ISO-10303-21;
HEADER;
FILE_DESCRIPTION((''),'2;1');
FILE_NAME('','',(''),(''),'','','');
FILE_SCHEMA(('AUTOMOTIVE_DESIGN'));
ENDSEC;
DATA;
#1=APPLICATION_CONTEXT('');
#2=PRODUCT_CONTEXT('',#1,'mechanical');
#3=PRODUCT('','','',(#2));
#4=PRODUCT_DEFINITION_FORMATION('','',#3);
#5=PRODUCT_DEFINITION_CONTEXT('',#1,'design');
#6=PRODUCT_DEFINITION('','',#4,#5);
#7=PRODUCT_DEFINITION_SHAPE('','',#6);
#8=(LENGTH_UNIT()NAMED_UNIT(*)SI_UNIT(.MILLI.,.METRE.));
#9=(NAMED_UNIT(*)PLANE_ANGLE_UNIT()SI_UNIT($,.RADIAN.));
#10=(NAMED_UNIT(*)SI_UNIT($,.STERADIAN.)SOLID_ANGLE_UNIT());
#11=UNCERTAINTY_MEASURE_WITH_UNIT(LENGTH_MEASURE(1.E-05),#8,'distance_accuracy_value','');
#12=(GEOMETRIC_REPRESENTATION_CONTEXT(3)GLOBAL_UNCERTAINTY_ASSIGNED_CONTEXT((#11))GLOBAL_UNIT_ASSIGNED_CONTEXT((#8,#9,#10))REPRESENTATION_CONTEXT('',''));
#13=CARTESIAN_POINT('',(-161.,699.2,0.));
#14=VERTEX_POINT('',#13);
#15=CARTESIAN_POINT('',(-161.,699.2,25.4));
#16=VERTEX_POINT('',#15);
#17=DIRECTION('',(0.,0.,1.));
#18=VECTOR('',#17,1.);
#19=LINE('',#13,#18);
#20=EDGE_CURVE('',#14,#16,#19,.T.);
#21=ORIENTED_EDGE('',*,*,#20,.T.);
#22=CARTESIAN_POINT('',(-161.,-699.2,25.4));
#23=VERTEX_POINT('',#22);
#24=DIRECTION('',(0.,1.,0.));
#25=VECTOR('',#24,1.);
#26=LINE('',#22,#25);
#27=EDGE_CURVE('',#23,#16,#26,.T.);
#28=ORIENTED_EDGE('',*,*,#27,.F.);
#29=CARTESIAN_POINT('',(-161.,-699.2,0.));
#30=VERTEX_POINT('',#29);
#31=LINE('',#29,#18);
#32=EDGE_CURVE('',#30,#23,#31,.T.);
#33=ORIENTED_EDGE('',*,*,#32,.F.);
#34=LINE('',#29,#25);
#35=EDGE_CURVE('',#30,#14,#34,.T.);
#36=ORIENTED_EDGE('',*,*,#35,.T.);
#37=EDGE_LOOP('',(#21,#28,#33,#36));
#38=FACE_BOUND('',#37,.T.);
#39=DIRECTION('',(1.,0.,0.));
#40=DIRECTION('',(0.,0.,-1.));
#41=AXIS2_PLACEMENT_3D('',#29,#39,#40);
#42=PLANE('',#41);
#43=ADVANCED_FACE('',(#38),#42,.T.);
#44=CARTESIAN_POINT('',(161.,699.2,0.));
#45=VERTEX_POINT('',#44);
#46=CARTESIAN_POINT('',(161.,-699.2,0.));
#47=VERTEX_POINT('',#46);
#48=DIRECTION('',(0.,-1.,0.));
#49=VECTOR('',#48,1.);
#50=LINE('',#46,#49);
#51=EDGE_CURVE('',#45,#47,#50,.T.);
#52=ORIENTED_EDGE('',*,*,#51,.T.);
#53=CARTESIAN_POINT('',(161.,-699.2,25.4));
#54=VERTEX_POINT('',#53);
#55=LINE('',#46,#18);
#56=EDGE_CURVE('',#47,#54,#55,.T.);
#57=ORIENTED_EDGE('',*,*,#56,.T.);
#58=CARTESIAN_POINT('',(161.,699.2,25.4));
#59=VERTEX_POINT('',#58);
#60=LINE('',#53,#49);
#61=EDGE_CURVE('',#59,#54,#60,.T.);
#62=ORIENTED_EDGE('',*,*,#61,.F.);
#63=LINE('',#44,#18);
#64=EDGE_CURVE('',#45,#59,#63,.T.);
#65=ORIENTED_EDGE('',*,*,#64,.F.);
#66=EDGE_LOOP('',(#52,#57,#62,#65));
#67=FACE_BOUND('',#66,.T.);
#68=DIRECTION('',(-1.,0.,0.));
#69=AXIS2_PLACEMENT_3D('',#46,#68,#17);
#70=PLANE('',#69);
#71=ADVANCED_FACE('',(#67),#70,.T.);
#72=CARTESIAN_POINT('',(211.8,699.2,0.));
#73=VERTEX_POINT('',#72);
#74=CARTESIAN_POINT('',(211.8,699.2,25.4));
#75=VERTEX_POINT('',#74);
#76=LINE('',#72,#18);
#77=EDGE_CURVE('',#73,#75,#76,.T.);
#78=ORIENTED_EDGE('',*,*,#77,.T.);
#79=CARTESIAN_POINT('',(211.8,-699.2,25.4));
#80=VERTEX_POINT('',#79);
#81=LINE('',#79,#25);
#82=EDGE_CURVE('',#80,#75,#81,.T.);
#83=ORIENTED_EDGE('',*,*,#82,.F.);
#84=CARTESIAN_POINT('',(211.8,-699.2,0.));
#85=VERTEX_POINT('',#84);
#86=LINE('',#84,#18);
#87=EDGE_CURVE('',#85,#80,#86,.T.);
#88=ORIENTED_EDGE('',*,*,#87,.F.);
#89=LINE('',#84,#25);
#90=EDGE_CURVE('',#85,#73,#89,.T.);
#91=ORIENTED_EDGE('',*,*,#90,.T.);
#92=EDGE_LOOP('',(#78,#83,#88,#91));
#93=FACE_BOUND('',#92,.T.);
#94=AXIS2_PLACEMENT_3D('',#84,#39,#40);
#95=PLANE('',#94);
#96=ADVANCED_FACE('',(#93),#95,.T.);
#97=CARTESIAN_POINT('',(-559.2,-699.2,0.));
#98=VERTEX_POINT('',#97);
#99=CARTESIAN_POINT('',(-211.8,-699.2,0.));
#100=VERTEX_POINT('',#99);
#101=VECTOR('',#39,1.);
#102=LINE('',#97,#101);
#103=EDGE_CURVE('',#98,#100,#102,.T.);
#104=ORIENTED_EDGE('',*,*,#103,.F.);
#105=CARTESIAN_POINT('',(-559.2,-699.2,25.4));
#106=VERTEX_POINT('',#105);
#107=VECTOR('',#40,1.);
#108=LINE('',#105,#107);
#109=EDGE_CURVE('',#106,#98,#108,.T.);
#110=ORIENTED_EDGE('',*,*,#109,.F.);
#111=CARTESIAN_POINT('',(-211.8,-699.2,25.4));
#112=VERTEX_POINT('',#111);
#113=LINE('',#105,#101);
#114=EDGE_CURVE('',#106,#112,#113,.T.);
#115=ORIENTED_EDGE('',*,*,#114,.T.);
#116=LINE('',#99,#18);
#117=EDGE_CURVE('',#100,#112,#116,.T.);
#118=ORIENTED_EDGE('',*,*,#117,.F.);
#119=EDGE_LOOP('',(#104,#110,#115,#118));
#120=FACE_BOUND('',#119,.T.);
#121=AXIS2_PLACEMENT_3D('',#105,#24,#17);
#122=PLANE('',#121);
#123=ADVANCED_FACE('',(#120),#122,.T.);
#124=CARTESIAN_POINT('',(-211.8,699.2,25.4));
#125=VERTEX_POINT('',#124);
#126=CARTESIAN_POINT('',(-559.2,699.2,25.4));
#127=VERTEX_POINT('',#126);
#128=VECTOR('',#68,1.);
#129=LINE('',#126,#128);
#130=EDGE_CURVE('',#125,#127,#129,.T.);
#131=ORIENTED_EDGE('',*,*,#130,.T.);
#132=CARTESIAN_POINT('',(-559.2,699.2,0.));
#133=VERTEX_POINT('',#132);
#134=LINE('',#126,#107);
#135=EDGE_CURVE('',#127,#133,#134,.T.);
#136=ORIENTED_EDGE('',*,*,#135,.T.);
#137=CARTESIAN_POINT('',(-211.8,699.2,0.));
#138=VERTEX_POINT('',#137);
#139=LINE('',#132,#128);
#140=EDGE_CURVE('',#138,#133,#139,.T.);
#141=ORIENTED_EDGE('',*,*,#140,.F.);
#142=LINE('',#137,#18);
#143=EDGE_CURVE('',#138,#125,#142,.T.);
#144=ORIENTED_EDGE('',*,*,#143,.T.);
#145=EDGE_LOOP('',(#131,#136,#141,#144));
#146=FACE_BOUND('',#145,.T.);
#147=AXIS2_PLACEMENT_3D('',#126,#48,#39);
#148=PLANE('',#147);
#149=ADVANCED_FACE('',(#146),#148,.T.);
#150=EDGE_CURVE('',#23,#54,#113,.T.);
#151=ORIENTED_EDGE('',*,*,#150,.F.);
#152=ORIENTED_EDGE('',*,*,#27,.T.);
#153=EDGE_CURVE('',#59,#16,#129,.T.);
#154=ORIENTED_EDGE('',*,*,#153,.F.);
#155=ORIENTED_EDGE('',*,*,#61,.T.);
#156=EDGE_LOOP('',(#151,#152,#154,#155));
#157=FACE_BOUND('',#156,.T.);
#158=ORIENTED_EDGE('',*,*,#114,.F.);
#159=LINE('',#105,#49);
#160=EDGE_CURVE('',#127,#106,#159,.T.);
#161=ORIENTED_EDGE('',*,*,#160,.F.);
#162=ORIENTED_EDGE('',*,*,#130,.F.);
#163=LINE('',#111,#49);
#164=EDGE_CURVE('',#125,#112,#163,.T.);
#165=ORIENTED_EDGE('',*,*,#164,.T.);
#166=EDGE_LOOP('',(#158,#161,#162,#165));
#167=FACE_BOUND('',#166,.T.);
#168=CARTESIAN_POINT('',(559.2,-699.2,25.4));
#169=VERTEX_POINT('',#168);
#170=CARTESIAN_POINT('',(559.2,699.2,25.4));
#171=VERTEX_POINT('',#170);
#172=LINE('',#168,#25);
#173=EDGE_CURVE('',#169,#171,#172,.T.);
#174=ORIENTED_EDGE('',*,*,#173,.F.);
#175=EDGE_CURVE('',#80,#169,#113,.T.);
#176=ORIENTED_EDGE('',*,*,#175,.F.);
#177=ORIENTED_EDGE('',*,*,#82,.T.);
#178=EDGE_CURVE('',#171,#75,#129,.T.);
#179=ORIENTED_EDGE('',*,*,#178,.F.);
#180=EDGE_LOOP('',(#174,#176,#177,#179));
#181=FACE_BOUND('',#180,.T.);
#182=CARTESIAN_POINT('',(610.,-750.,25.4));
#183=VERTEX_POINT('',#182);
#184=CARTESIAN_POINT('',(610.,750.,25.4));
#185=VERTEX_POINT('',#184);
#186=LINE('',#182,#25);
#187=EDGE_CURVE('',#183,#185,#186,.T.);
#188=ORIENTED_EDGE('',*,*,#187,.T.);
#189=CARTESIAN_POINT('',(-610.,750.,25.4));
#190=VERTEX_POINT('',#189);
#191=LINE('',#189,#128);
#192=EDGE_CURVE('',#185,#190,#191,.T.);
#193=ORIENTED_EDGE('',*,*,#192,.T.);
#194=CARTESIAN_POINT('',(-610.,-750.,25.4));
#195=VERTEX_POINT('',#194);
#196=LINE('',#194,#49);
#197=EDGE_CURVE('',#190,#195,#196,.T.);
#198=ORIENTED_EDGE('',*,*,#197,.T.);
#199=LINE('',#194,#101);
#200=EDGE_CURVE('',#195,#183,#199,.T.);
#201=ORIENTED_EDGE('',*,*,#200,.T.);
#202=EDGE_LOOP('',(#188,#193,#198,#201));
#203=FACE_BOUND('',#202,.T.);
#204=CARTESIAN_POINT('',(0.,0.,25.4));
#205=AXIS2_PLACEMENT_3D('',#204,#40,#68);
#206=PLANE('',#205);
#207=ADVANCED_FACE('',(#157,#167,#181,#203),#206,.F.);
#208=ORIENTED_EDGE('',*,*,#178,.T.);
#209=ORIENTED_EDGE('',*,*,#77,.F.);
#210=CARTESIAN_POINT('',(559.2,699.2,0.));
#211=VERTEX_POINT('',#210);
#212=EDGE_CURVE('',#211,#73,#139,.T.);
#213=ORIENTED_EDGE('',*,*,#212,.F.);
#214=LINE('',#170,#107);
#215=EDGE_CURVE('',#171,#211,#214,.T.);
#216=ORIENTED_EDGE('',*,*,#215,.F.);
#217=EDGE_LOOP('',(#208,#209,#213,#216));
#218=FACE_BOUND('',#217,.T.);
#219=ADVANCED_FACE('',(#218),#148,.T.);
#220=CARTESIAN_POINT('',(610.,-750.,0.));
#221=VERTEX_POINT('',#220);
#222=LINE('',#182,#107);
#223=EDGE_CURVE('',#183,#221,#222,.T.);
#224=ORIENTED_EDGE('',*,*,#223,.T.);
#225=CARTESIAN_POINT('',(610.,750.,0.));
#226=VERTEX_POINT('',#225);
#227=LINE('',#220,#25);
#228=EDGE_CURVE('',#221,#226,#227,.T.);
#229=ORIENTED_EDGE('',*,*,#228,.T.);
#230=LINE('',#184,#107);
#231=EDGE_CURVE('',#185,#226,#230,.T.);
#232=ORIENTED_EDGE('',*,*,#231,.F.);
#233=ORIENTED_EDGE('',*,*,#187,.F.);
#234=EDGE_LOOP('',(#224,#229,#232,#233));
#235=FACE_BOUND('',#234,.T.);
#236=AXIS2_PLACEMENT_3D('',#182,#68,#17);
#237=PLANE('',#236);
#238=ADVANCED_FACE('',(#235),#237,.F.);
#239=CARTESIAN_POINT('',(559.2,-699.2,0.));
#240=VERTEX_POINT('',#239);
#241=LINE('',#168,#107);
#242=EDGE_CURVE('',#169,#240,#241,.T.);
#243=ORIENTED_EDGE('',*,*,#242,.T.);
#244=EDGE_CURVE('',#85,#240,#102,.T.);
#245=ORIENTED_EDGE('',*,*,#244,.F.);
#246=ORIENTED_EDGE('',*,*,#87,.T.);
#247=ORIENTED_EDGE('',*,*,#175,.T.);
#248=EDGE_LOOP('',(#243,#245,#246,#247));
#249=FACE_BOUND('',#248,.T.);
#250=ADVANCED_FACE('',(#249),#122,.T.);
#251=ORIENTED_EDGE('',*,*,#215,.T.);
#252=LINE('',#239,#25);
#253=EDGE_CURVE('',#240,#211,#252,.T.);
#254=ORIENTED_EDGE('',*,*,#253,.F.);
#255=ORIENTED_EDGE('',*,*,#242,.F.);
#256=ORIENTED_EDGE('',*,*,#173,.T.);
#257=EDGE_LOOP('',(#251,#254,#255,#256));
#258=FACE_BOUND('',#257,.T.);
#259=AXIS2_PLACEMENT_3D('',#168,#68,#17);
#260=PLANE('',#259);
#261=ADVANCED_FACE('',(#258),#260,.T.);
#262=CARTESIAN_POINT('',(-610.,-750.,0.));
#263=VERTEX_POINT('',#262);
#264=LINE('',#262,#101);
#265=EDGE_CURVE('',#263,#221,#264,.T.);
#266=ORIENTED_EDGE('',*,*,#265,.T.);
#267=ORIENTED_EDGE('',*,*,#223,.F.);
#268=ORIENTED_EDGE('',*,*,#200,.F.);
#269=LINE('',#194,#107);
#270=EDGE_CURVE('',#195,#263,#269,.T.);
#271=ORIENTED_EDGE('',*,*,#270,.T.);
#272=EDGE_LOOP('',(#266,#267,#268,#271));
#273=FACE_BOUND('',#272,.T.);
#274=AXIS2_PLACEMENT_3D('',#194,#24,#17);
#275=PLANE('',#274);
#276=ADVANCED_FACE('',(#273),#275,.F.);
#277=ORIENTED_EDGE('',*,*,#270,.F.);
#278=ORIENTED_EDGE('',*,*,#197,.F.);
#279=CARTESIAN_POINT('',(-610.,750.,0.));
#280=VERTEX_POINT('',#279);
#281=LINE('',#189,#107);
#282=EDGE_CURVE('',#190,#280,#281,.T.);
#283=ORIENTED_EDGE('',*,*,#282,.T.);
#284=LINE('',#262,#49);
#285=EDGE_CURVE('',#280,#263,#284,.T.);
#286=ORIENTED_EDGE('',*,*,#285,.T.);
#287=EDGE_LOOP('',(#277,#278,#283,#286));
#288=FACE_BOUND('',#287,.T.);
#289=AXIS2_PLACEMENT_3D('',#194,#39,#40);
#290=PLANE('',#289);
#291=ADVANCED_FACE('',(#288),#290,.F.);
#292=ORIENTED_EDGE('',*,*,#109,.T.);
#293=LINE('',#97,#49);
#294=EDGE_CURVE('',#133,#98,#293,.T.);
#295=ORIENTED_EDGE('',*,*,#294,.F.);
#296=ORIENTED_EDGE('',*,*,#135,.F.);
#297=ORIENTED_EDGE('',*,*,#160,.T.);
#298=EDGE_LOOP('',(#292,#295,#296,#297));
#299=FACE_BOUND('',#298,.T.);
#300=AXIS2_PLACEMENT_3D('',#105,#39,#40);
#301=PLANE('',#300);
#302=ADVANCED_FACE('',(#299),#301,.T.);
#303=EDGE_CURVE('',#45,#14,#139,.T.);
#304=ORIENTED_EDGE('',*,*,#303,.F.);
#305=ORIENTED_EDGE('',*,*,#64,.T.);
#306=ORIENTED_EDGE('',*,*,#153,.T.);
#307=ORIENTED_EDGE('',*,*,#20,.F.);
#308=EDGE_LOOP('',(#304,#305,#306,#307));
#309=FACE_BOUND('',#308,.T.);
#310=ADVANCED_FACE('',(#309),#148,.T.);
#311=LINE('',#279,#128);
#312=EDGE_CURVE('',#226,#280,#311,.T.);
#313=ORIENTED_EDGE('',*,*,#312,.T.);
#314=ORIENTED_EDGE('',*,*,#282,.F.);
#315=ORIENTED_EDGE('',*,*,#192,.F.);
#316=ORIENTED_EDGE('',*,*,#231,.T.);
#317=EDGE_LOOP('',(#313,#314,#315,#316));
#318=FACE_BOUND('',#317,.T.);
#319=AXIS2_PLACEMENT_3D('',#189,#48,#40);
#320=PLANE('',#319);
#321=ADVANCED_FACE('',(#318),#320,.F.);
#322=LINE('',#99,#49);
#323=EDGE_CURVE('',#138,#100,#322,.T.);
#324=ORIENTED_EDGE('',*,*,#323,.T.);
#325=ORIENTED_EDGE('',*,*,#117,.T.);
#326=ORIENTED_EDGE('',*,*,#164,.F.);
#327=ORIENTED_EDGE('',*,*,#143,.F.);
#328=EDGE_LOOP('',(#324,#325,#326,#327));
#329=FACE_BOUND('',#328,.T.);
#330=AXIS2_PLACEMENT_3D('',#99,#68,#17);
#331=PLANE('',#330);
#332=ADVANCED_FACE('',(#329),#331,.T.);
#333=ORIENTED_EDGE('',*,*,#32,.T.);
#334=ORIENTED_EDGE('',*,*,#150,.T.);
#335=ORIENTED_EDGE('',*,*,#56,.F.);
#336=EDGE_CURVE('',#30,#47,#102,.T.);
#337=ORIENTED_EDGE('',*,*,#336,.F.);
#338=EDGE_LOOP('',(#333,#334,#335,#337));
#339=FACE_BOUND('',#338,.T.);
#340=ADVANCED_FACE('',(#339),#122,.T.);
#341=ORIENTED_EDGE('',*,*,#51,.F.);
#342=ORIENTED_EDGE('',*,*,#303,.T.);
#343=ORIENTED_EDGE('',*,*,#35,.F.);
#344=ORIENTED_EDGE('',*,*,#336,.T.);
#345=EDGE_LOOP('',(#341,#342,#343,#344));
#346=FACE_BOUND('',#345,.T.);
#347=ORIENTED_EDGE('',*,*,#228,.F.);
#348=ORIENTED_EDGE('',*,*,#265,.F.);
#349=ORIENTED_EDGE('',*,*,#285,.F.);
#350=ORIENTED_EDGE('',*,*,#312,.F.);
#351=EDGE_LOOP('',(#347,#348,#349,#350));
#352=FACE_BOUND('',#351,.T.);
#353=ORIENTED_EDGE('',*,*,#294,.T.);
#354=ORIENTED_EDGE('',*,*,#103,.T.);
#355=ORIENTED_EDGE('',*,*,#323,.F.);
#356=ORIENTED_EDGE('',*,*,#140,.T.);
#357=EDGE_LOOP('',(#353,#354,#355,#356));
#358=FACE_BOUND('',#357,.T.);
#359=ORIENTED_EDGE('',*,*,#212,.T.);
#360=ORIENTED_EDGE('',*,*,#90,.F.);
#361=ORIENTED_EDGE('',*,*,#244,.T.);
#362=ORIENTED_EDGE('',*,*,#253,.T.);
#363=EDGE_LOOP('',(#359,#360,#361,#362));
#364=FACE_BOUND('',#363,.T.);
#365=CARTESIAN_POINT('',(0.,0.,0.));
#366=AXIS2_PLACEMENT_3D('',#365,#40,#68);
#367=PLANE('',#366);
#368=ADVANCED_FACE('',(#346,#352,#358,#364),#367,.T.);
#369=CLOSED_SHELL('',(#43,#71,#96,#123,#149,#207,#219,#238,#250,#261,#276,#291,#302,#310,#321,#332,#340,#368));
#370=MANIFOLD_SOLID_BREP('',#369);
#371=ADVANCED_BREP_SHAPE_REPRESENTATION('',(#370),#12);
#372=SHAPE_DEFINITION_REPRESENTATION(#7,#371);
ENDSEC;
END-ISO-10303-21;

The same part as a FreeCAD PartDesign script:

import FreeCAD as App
import Part
import Sketcher

V = App.Vector

doc = App.newDocument("Part")
body = doc.addObject("PartDesign::Body", "Body")

# Sketch on XY plane
sketch1 = doc.addObject("Sketcher::SketchObject", "Sketch")
body.addObject(sketch1)
sketch1.AttachmentSupport = (doc.XY_Plane, [""])
sketch1.MapMode = "FlatFace"
sketch1.addGeometry(Part.LineSegment(V(-610, 750, 0), V(-610, -750, 0)), False)
sketch1.addGeometry(Part.LineSegment(V(-610, -750, 0), V(610, -750, 0)), False)
sketch1.addGeometry(Part.LineSegment(V(610, -750, 0), V(610, 750, 0)), False)
sketch1.addGeometry(Part.LineSegment(V(610, 750, 0), V(-610, 750, 0)), False)
sketch1.addGeometry(Part.LineSegment(V(559, -699, 0), V(-559, -699, 0)), False)
sketch1.addGeometry(Part.LineSegment(V(-559, -699, 0), V(-559, 699, 0)), False)
sketch1.addGeometry(Part.LineSegment(V(-559, 699, 0), V(559, 699, 0)), False)
sketch1.addGeometry(Part.LineSegment(V(559, 699, 0), V(559, -699, 0)), False)
sketch1.addConstraint(Sketcher.Constraint("Coincident", 0, 2, 1, 1))
sketch1.addConstraint(Sketcher.Constraint("Coincident", 1, 2, 2, 1))
sketch1.addConstraint(Sketcher.Constraint("Coincident", 2, 2, 3, 1))
sketch1.addConstraint(Sketcher.Constraint("Coincident", 3, 2, 0, 1))
sketch1.addConstraint(Sketcher.Constraint("Coincident", 4, 2, 5, 1))
sketch1.addConstraint(Sketcher.Constraint("Coincident", 5, 2, 6, 1))
sketch1.addConstraint(Sketcher.Constraint("Coincident", 6, 2, 7, 1))
sketch1.addConstraint(Sketcher.Constraint("Coincident", 7, 2, 4, 1))
sketch1.addConstraint(Sketcher.Constraint("Vertical", 0))
sketch1.addConstraint(Sketcher.Constraint("Horizontal", 1))
sketch1.addConstraint(Sketcher.Constraint("Vertical", 2))
sketch1.addConstraint(Sketcher.Constraint("Horizontal", 3))
sketch1.addConstraint(Sketcher.Constraint("Horizontal", 4))
sketch1.addConstraint(Sketcher.Constraint("Vertical", 5))
sketch1.addConstraint(Sketcher.Constraint("Horizontal", 6))
sketch1.addConstraint(Sketcher.Constraint("Vertical", 7))
sketch1.addConstraint(Sketcher.Constraint("Symmetric", 0, 2, 2, 2, -1, 1))
sketch1.addConstraint(Sketcher.Constraint("Symmetric", 4, 2, 6, 2, -1, 1))
sketch1.addConstraint(Sketcher.Constraint("DistanceX", 1, 1, 1, 2, 1220.0))
sketch1.addConstraint(Sketcher.Constraint("DistanceY", 0, 2, 0, 1, 1500.0))
sketch1.addConstraint(Sketcher.Constraint("DistanceX", 4, 2, 4, 1, 1118.4))
sketch1.addConstraint(Sketcher.Constraint("DistanceY", 5, 1, 5, 2, 1398.4))
pad1 = doc.addObject("PartDesign::Pad", "Pad")
body.addObject(pad1)
pad1.Profile = sketch1
pad1.Length = 25.4

# Sketch on XY plane
sketch2 = doc.addObject("Sketcher::SketchObject", "Sketch001")
body.addObject(sketch2)
sketch2.AttachmentSupport = (doc.XY_Plane, [""])
sketch2.MapMode = "FlatFace"
sketch2.AttachmentOffset = App.Placement(V(0, 0, 25.4), App.Rotation())
sketch2.addGeometry(Part.LineSegment(V(-212, 699, 0), V(-212, -699, 0)), False)
sketch2.addGeometry(Part.LineSegment(V(-212, -699, 0), V(-161, -699, 0)), False)
sketch2.addGeometry(Part.LineSegment(V(-161, -699, 0), V(-161, 699, 0)), False)
sketch2.addGeometry(Part.LineSegment(V(-161, 699, 0), V(-212, 699, 0)), False)
sketch2.addGeometry(Part.LineSegment(V(161, 699, 0), V(161, -699, 0)), False)
sketch2.addGeometry(Part.LineSegment(V(161, -699, 0), V(212, -699, 0)), False)
sketch2.addGeometry(Part.LineSegment(V(212, -699, 0), V(212, 699, 0)), False)
sketch2.addGeometry(Part.LineSegment(V(212, 699, 0), V(161, 699, 0)), False)
sketch2.addConstraint(Sketcher.Constraint("Coincident", 0, 2, 1, 1))
sketch2.addConstraint(Sketcher.Constraint("Coincident", 1, 2, 2, 1))
sketch2.addConstraint(Sketcher.Constraint("Coincident", 2, 2, 3, 1))
sketch2.addConstraint(Sketcher.Constraint("Coincident", 3, 2, 0, 1))
sketch2.addConstraint(Sketcher.Constraint("Coincident", 4, 2, 5, 1))
sketch2.addConstraint(Sketcher.Constraint("Coincident", 5, 2, 6, 1))
sketch2.addConstraint(Sketcher.Constraint("Coincident", 6, 2, 7, 1))
sketch2.addConstraint(Sketcher.Constraint("Coincident", 7, 2, 4, 1))
sketch2.addConstraint(Sketcher.Constraint("Vertical", 0))
sketch2.addConstraint(Sketcher.Constraint("Horizontal", 1))
sketch2.addConstraint(Sketcher.Constraint("Vertical", 2))
sketch2.addConstraint(Sketcher.Constraint("Horizontal", 3))
sketch2.addConstraint(Sketcher.Constraint("Vertical", 4))
sketch2.addConstraint(Sketcher.Constraint("Horizontal", 5))
sketch2.addConstraint(Sketcher.Constraint("Vertical", 6))
sketch2.addConstraint(Sketcher.Constraint("Horizontal", 7))
sketch2.addConstraint(Sketcher.Constraint("Symmetric", 2, 2, 4, 2, -1, 1))
sketch2.addConstraint(Sketcher.Constraint("Symmetric", 0, 2, 6, 2, -1, 1))
sketch2.addConstraint(Sketcher.Constraint("Horizontal", 1, 2, 4, 2))
sketch2.addConstraint(Sketcher.Constraint("DistanceX", 1, 1, 1, 2, 50.8))
sketch2.addConstraint(Sketcher.Constraint("DistanceY", 0, 2, 0, 1, 1398.4))
sketch2.addConstraint(Sketcher.Constraint("DistanceX", 1, 2, -1, 1, 161.0))
pad2 = doc.addObject("PartDesign::Pad", "Pad001")
body.addObject(pad2)
pad2.Profile = sketch2
pad2.Length = 25.4
pad2.Reversed = True

doc.recompute()
